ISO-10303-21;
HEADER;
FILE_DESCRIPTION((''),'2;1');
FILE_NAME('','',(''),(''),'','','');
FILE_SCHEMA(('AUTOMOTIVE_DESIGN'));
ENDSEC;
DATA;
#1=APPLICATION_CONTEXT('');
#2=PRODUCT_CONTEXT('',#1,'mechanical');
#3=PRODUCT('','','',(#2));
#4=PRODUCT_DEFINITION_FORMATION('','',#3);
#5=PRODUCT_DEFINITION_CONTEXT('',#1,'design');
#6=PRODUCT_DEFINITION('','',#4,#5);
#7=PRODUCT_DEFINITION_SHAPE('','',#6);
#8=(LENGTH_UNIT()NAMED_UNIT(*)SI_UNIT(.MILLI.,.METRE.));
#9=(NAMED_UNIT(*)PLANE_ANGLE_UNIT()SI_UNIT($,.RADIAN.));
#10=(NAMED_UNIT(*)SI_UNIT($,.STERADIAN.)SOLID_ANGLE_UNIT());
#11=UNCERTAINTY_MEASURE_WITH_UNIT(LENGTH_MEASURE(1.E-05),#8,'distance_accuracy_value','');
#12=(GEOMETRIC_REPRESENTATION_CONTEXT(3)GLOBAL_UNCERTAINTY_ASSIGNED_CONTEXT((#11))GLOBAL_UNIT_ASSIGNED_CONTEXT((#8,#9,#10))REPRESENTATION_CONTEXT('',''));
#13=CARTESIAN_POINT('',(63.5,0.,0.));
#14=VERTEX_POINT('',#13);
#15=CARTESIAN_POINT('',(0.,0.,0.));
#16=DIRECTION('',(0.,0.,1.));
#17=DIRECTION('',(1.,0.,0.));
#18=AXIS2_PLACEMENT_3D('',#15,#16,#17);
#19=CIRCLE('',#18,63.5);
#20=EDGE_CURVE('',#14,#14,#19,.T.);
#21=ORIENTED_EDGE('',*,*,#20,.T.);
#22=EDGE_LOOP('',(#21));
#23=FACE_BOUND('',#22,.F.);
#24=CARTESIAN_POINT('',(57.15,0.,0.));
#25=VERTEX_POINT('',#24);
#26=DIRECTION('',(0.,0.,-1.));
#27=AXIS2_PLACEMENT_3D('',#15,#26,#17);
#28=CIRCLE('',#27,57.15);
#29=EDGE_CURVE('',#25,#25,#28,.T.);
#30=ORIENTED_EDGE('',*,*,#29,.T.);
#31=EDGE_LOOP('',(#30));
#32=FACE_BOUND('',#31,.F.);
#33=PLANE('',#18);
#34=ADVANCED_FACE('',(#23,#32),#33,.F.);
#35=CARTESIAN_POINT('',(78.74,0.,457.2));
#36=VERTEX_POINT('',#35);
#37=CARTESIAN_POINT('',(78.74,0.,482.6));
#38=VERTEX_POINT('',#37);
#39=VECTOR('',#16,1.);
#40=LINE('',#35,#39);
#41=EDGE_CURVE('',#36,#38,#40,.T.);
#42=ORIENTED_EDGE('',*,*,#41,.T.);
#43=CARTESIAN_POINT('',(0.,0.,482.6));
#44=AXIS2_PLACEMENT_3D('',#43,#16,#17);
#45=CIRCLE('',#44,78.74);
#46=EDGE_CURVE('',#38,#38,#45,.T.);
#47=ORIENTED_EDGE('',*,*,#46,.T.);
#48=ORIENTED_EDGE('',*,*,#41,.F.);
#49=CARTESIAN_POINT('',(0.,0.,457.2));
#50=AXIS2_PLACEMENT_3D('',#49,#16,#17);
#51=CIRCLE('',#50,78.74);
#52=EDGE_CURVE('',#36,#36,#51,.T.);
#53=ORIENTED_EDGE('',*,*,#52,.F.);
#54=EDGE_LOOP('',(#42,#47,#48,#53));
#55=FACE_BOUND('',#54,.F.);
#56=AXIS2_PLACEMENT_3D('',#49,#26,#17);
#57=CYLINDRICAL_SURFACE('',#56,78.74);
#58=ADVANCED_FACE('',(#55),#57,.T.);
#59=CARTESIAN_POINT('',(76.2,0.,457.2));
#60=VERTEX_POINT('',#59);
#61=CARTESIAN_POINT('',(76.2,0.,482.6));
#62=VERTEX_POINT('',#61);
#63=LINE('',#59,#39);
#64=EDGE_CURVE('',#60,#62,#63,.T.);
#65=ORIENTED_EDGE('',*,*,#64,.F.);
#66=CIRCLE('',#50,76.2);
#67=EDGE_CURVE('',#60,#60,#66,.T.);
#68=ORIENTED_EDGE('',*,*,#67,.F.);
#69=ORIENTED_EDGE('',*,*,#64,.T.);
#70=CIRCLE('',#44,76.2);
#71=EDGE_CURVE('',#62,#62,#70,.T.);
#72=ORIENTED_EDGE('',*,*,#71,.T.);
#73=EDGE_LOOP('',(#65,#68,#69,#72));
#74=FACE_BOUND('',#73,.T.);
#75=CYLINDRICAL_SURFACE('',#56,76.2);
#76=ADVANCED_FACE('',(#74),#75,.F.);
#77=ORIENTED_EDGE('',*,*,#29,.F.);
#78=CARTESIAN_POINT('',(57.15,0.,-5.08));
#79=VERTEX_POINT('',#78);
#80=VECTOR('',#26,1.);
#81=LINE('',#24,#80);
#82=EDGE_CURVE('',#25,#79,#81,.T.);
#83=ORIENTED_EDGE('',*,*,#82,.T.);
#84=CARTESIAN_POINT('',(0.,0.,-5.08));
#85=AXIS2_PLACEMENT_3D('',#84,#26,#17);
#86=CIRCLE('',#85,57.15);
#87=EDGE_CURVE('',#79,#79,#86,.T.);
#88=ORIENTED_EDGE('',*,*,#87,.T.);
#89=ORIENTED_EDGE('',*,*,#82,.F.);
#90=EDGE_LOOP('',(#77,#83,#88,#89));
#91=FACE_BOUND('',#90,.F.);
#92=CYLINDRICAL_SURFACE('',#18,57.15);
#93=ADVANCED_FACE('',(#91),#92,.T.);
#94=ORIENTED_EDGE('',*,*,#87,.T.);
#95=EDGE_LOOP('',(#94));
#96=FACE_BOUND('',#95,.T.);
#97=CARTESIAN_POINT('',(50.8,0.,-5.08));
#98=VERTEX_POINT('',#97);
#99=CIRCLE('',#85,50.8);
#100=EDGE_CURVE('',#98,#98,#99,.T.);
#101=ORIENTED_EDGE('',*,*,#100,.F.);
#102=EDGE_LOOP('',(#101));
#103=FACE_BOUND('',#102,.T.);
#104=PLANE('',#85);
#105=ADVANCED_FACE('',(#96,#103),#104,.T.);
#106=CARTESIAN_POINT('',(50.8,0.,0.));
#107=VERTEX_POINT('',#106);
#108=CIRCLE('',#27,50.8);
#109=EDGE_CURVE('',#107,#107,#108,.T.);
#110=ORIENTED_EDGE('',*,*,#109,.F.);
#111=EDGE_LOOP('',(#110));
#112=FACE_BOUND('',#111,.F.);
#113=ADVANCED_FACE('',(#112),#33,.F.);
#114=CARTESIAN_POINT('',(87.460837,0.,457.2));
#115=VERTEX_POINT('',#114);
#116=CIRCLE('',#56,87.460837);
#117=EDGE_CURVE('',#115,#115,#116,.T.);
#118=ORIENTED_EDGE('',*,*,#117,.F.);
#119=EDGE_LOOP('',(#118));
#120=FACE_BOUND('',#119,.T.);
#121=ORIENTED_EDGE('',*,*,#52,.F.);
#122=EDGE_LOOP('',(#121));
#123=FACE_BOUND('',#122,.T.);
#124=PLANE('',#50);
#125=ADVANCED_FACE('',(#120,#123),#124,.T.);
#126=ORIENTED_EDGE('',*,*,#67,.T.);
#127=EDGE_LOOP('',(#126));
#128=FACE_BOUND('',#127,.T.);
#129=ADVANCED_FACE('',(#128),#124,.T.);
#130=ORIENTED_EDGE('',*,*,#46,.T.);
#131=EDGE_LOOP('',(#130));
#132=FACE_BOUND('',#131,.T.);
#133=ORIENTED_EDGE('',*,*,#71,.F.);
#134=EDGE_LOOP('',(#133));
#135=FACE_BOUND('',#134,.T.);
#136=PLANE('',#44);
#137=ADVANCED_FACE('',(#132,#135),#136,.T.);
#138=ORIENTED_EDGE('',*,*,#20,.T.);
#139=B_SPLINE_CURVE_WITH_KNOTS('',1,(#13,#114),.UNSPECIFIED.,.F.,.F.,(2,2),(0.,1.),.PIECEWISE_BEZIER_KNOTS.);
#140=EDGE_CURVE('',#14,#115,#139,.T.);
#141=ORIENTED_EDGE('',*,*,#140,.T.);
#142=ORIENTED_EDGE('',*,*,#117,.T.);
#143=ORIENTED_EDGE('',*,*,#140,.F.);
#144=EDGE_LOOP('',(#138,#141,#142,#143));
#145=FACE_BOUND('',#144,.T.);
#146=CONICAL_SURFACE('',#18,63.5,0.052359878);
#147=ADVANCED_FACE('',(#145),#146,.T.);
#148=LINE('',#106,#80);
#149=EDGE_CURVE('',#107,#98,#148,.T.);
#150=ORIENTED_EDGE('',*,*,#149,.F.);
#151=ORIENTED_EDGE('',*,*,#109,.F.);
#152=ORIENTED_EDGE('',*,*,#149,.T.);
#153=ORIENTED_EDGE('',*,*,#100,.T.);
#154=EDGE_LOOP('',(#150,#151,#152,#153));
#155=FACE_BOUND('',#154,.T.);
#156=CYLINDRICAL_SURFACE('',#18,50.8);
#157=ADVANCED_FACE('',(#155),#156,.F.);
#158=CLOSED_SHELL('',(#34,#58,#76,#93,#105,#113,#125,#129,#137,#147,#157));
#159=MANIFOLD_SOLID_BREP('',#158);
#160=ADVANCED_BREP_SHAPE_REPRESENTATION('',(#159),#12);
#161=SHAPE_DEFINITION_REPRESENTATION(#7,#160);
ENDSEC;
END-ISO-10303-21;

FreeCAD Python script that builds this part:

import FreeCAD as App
import Part
import Sketcher
Q = App.Units.Quantity

doc = App.newDocument("Part")
body = doc.addObject("PartDesign::Body", "Body")

# Sketch on XY plane
sketch1 = doc.addObject("Sketcher::SketchObject", "Sketch")
body.addObject(sketch1)
sketch1.AttachmentSupport = (doc.XY_Plane, [""])
sketch1.MapMode = "FlatFace"
sketch1.addGeometry(Part.Circle(App.Vector(0, 0, 0), App.Vector(0, 0, 1), 63.5), False)
sketch1.addConstraint([
    Sketcher.Constraint("Coincident", 0, 3, -1, 1),
    Sketcher.Constraint("Diameter", 0, Q("5 in")),
])
pad1 = doc.addObject("PartDesign::Pad", "Pad")
body.addObject(pad1)
pad1.Profile = sketch1
pad1.Length = Q("18 in")
pad1.TaperAngle = 3

# Sketch on XY plane
sketch2 = doc.addObject("Sketcher::SketchObject", "Sketch001")
body.addObject(sketch2)
sketch2.AttachmentSupport = (doc.XY_Plane, [""])
sketch2.MapMode = "FlatFace"
sketch2.addGeometry([
    Part.Circle(App.Vector(0, 0, 0), App.Vector(0, 0, 1), 57.15),
    Part.Circle(App.Vector(0, 0, 0), App.Vector(0, 0, 1), 50.8),
], False)
sketch2.addConstraint([
    Sketcher.Constraint("Coincident", 0, 3, -1, 1),
    Sketcher.Constraint("Coincident", 1, 3, -1, 1),
    Sketcher.Constraint("Diameter", 1, Q("4 in")),
    Sketcher.Constraint("Diameter", 0, Q("4.5 in")),
])
pad2 = doc.addObject("PartDesign::Pad", "Pad001")
body.addObject(pad2)
pad2.Profile = sketch2
pad2.Length = Q("0.2 in")
pad2.Reversed = True

# Sketch on XY plane
sketch3 = doc.addObject("Sketcher::SketchObject", "Sketch002")
body.addObject(sketch3)
sketch3.AttachmentSupport = (doc.XY_Plane, [""])
sketch3.MapMode = "FlatFace"
sketch3.AttachmentOffset = App.Placement(App.Vector(0, 0, 18 * 25.4), App.Rotation())
sketch3.addGeometry([
    Part.Circle(App.Vector(0, 0, 0), App.Vector(0, 0, 1), 78.74),
    Part.Circle(App.Vector(0, 0, 0), App.Vector(0, 0, 1), 76.2),
], False)
sketch3.addConstraint([
    Sketcher.Constraint("Coincident", 0, 3, -1, 1),
    Sketcher.Constraint("Coincident", 1, 3, -1, 1),
    Sketcher.Constraint("Diameter", 1, Q("6 in")),
    Sketcher.Constraint("Diameter", 0, Q("6.2 in")),
])
pad3 = doc.addObject("PartDesign::Pad", "Pad002")
body.addObject(pad3)
pad3.Profile = sketch3
pad3.Length = Q("1 in")

doc.recompute()
